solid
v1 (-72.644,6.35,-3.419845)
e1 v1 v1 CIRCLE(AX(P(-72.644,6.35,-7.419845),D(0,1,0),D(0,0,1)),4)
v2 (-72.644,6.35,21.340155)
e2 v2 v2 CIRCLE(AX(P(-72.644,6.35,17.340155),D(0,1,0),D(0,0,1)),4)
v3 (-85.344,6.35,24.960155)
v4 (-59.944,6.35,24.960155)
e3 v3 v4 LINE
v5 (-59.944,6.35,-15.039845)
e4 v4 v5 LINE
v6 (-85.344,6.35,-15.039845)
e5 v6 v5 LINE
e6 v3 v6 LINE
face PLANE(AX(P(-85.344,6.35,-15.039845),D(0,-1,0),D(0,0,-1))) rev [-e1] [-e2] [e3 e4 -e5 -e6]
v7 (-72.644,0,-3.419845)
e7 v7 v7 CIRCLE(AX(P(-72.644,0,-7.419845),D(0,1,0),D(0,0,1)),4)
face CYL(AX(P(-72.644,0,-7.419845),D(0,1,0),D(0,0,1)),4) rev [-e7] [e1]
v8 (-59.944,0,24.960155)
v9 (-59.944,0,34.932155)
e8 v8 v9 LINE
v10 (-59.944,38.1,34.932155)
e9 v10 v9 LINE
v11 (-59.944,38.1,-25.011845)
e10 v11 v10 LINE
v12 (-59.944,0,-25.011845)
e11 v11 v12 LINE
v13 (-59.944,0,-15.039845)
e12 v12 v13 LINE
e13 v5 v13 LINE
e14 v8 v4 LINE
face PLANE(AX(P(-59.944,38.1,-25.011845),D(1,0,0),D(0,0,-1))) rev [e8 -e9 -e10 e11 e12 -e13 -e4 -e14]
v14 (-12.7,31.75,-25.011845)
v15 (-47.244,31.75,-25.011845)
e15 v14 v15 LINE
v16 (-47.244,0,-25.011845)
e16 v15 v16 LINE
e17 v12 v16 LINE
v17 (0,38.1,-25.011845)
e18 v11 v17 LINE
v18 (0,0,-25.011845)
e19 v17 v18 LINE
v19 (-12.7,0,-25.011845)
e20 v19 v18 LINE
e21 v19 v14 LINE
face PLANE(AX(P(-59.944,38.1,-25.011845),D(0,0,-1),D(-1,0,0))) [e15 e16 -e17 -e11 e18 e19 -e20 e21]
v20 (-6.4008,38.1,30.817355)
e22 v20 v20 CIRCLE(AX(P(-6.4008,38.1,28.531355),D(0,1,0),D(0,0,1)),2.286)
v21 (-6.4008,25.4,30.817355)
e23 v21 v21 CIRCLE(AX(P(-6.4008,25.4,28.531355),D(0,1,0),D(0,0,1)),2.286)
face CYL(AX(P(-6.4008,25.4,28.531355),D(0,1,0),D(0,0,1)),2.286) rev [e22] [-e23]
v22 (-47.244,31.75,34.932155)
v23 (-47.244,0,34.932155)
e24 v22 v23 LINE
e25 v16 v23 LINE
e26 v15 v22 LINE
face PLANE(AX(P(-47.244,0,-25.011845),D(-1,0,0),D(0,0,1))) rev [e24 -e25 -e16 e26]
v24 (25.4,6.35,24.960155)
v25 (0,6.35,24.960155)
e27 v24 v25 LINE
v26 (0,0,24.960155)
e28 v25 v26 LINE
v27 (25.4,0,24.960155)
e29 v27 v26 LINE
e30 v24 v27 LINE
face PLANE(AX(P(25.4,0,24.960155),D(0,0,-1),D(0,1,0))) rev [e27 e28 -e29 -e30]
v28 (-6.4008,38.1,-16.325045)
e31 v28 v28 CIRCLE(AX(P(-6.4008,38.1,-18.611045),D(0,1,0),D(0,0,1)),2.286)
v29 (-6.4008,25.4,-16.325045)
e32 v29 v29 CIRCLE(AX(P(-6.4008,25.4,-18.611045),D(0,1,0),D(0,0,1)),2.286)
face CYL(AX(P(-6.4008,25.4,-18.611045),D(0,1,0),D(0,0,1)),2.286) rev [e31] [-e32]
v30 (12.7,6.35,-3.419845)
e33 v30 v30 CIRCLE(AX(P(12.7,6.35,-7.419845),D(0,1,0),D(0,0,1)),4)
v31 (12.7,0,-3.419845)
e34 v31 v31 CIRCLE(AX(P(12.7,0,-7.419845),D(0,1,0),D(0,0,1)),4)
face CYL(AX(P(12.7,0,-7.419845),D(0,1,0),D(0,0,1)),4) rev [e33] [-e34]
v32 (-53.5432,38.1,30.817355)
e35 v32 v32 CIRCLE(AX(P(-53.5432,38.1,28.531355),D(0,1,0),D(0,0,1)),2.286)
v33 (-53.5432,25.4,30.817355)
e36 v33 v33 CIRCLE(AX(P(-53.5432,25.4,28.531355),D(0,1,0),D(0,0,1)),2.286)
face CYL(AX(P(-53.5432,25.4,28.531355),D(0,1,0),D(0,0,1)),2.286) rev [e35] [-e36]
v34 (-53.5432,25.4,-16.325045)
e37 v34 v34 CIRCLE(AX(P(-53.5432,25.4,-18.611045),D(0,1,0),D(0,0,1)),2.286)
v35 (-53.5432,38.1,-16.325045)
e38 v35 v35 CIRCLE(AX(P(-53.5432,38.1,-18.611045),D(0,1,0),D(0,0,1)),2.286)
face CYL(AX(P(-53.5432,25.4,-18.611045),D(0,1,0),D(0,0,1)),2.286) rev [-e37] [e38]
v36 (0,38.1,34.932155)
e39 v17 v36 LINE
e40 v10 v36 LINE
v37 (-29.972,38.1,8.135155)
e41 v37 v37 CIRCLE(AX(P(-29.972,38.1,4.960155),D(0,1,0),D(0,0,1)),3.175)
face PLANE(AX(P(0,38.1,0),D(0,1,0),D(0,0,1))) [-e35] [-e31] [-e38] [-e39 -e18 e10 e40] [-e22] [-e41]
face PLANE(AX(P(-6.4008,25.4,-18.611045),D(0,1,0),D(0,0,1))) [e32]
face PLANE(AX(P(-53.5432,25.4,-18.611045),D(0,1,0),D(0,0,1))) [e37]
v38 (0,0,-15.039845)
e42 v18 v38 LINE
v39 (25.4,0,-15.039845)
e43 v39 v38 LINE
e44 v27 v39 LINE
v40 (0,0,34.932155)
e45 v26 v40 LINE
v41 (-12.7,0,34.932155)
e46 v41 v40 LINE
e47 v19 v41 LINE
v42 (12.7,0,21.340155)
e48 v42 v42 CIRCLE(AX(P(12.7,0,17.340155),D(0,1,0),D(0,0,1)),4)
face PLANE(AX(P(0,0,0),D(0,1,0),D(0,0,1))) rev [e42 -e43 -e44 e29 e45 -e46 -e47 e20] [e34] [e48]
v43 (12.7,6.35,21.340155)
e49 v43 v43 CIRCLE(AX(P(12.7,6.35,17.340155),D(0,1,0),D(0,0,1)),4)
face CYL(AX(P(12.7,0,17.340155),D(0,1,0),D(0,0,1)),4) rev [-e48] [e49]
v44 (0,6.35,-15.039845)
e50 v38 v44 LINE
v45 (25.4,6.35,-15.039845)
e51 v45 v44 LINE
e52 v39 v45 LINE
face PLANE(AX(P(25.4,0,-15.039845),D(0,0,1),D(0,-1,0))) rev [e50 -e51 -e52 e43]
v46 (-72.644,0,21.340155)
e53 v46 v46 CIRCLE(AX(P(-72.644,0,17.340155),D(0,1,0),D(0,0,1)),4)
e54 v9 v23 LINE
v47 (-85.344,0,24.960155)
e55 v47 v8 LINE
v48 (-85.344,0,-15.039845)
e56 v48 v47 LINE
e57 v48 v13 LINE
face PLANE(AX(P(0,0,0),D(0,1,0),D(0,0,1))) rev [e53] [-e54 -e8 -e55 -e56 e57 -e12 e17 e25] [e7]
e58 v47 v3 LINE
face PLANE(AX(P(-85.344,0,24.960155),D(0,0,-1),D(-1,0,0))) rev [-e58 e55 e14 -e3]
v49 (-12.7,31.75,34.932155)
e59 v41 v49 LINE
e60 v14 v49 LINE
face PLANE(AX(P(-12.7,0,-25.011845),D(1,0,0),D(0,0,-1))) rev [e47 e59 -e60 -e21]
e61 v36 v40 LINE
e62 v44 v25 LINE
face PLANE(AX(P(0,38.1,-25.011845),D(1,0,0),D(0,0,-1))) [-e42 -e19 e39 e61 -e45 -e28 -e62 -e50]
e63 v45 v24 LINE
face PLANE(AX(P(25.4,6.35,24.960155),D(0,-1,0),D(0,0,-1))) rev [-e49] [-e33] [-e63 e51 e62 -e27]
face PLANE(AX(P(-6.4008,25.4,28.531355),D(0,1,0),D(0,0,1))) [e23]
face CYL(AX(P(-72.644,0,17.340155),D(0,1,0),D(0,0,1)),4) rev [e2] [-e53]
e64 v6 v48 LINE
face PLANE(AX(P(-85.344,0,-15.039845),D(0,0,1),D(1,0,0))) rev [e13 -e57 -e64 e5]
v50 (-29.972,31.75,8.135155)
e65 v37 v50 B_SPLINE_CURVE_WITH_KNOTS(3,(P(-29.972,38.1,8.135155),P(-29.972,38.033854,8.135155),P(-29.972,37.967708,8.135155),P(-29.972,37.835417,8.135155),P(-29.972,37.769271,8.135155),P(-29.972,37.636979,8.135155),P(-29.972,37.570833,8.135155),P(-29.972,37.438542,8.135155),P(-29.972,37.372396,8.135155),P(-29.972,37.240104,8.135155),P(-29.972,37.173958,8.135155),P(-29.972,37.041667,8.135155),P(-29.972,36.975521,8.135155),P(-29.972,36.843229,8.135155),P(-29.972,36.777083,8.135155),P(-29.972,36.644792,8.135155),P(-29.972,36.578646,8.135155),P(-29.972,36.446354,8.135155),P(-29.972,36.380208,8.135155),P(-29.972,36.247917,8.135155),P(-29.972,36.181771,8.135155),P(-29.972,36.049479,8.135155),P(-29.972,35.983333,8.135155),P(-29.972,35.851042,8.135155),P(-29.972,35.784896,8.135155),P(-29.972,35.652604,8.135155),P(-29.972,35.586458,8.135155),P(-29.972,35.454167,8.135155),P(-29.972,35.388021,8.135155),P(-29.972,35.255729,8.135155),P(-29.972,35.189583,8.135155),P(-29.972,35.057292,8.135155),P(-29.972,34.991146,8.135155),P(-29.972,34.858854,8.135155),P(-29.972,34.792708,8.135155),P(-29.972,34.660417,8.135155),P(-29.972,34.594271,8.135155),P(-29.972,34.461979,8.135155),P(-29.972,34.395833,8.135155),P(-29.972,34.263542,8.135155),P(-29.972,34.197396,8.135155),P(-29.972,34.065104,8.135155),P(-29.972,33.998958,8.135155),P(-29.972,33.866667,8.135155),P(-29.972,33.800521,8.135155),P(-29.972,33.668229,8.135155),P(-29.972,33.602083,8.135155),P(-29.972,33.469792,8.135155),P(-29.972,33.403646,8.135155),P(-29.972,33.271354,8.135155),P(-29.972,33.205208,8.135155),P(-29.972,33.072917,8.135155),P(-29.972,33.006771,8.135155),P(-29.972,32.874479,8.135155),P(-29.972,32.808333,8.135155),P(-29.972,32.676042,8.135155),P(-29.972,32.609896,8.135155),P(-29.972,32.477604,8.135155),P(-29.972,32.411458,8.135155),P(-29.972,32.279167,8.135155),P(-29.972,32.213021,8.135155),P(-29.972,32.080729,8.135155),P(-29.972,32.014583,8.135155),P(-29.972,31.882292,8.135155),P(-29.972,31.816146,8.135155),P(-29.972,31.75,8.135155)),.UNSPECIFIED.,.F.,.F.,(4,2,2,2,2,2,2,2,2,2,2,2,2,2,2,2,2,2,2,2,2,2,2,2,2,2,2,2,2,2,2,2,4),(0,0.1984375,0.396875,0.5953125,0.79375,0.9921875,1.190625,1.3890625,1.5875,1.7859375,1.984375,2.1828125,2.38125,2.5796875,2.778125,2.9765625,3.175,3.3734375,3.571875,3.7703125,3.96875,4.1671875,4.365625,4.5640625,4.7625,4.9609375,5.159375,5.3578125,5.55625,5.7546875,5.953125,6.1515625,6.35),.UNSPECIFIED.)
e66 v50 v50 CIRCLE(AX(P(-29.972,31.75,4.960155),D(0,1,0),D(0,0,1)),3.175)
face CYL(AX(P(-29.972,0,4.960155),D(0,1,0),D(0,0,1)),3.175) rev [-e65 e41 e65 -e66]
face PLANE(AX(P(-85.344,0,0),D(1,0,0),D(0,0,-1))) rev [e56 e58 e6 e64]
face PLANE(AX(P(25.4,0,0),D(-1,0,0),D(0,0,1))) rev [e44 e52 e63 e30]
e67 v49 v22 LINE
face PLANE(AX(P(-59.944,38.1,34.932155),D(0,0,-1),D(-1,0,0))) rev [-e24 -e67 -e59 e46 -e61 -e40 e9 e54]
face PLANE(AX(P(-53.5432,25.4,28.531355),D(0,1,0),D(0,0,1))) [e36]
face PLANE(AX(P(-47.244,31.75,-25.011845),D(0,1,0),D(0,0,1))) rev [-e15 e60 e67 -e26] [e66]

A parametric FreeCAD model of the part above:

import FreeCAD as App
import Part
import Sketcher

V = App.Vector
Q = App.Units.Quantity


def add_polygon(sketch, points):
    """Adds a closed chain of lines whose ends are joined by coincident constraints."""
    first, n = sketch.GeometryCount, len(points)
    for a, b in zip(points, points[1:] + points[:1]):
        sketch.addGeometry(Part.LineSegment(App.Vector(*a, 0), App.Vector(*b, 0)), False)
    for i in range(n):
        sketch.addConstraint(Sketcher.Constraint("Coincident", first + i, 2, first + (i + 1) % n, 1))

doc = App.newDocument("Part")
body = doc.addObject("PartDesign::Body", "Body")

sketch1 = body.newObject("Sketcher::SketchObject", "Sketch")
sketch1.AttachmentSupport = (doc.getObject("XZ_Plane"), [""])
sketch1.MapMode = "FlatFace"
add_polygon(sketch1, [(-59.944, -25.011845), (-59.944, 34.932155), (0, 34.932155), (0, -25.011845)])
sketch1.addConstraint(Sketcher.Constraint("Vertical", 0))
sketch1.addConstraint(Sketcher.Constraint("Horizontal", 1))
sketch1.addConstraint(Sketcher.Constraint("Vertical", 2))
sketch1.addConstraint(Sketcher.Constraint("Horizontal", 3))
sketch1.addConstraint(Sketcher.Constraint("PointOnObject", 1, 2, -2))
sketch1.addConstraint(Sketcher.Constraint("Equal", 3, 0))
sketch1.addConstraint(Sketcher.Constraint("DistanceX", 1, 1, 1, 2, Q("2.36 in")))
sketch1.addConstraint(Sketcher.Constraint("DistanceY", -1, 1, 0, 2, 34.932155))
pad1 = body.newObject("PartDesign::Pad", "Pad")
pad1.Profile = sketch1
pad1.Length = Q("1.5 in")
pad1.Reversed = True

sketch2 = body.newObject("Sketcher::SketchObject", "Sketch001")
sketch2.AttachmentSupport = (doc.getObject("XY_Plane"), [""])
sketch2.MapMode = "FlatFace"
sketch2.AttachmentOffset = App.Placement(V(0, 0, 34.932155), App.Rotation())
add_polygon(sketch2, [(-47.244, 31.75), (-47.244, 0), (-12.7, 0), (-12.7, 31.75)])
sketch2.addConstraint(Sketcher.Constraint("Vertical", 0))
sketch2.addConstraint(Sketcher.Constraint("Horizontal", 1))
sketch2.addConstraint(Sketcher.Constraint("Vertical", 2))
sketch2.addConstraint(Sketcher.Constraint("Horizontal", 3))
sketch2.addConstraint(Sketcher.Constraint("PointOnObject", 0, 2, -1))
sketch2.addConstraint(Sketcher.Constraint("DistanceX", 1, 1, 1, 2, Q("1.36 in")))
sketch2.addConstraint(Sketcher.Constraint("DistanceY", 0, 2, 0, 1, Q("1.25 in")))
sketch2.addConstraint(Sketcher.Constraint("DistanceX", 1, 2, -1, 1, Q("0.5 in")))
pocket1 = body.newObject("PartDesign::Pocket", "Pocket")
pocket1.Profile = sketch2
pocket1.Type = "ThroughAll"

sketch3 = body.newObject("Sketcher::SketchObject", "Sketch002")
sketch3.AttachmentSupport = (doc.getObject("XZ_Plane"), [""])
sketch3.MapMode = "FlatFace"
sketch3.AttachmentOffset = App.Placement(V(0, 0, -1.5 * 25.4), App.Rotation())
sketch3.addGeometry(Part.Circle(V(-29.972, 4.960155, 0), V(0, 0, 1), 3.175), False)
sketch3.addConstraint(Sketcher.Constraint("Diameter", 0, Q("0.25 in")))
sketch3.addConstraint(Sketcher.Constraint("DistanceX", 0, 3, -1, 1, Q("1.18 in")))
sketch3.addConstraint(Sketcher.Constraint("DistanceY", -1, 1, 0, 3, 4.960155))
pocket2 = body.newObject("PartDesign::Pocket", "Pocket001")
pocket2.Profile = sketch3
pocket2.Type = "ThroughAll"
pocket2.Reversed = True

sketch4 = body.newObject("Sketcher::SketchObject", "Sketch003")
sketch4.AttachmentSupport = (doc.getObject("YZ_Plane"), [""])
sketch4.MapMode = "FlatFace"
add_polygon(sketch4, [(6.35, 24.960155), (0, 24.960155), (0, -15.039845), (6.35, -15.039845)])
sketch4.addConstraint(Sketcher.Constraint("Horizontal", 0))
sketch4.addConstraint(Sketcher.Constraint("Vertical", 1))
sketch4.addConstraint(Sketcher.Constraint("Horizontal", 2))
sketch4.addConstraint(Sketcher.Constraint("Vertical", 3))
sketch4.addConstraint(Sketcher.Constraint("PointOnObject", 0, 2, -2))
sketch4.addConstraint(Sketcher.Constraint("DistanceX", 0, 2, 0, 1, Q("0.25 in")))
sketch4.addConstraint(Sketcher.Constraint("DistanceY", 1, 2, 1, 1, 40.0))
sketch4.addConstraint(Sketcher.Constraint("DistanceY", -1, 1, 0, 2, 24.960155))
pad2 = body.newObject("PartDesign::Pad", "Pad001")
pad2.Profile = sketch4
pad2.Length = Q("1 in")

sketch5 = body.newObject("Sketcher::SketchObject", "Sketch004")
sketch5.AttachmentSupport = (doc.getObject("YZ_Plane"), [""])
sketch5.MapMode = "FlatFace"
sketch5.AttachmentOffset = App.Placement(V(0, 0, -2.36 * 25.4), App.Rotation())
add_polygon(sketch5, [(6.35, -15.039845), (0, -15.039845), (0, 24.960155), (6.35, 24.960155)])
sketch5.addConstraint(Sketcher.Constraint("Horizontal", 0))
sketch5.addConstraint(Sketcher.Constraint("Vertical", 1))
sketch5.addConstraint(Sketcher.Constraint("Horizontal", 2))
sketch5.addConstraint(Sketcher.Constraint("Vertical", 3))
sketch5.addConstraint(Sketcher.Constraint("PointOnObject", 0, 2, -2))
sketch5.addConstraint(Sketcher.Constraint("DistanceX", 0, 2, 0, 1, Q("0.25 in")))
sketch5.addConstraint(Sketcher.Constraint("DistanceY", 1, 1, 1, 2, 40.0))
sketch5.addConstraint(Sketcher.Constraint("DistanceY", 0, 2, -1, 1, 15.039845))
pad3 = body.newObject("PartDesign::Pad", "Pad002")
pad3.Profile = sketch5
pad3.Length = Q("1 in")
pad3.Reversed = True

sketch6 = body.newObject("Sketcher::SketchObject", "Sketch005")
sketch6.AttachmentSupport = (doc.getObject("XZ_Plane"), [""])
sketch6.MapMode = "FlatFace"
sketch6.AttachmentOffset = App.Placement(V(0, 0, -0.25 * 25.4), App.Rotation())
sketch6.addGeometry(Part.Circle(V(-72.644, -7.419845, 0), V(0, 0, 1), 4), False)
sketch6.addGeometry(Part.Circle(V(-72.644, 17.340155, 0), V(0, 0, 1), 4), False)
sketch6.addGeometry(Part.Circle(V(12.7, -7.419845, 0), V(0, 0, 1), 4), False)
sketch6.addGeometry(Part.Circle(V(12.7, 17.340155, 0), V(0, 0, 1), 4), False)
sketch6.addConstraint(Sketcher.Constraint("Equal", 0, 1))
sketch6.addConstraint(Sketcher.Constraint("Equal", 1, 2))
sketch6.addConstraint(Sketcher.Constraint("Equal", 2, 3))
sketch6.addConstraint(Sketcher.Constraint("Horizontal", 0, 3, 2, 3))
sketch6.addConstraint(Sketcher.Constraint("Horizontal", 1, 3, 3, 3))
sketch6.addConstraint(Sketcher.Constraint("Vertical", 0, 3, 1, 3))
sketch6.addConstraint(Sketcher.Constraint("Vertical", 2, 3, 3, 3))
sketch6.addConstraint(Sketcher.Constraint("DistanceX", -1, 1, 2, 3, Q("0.5 in")))
sketch6.addConstraint(Sketcher.Constraint("Diameter", 0, 8.0))
sketch6.addConstraint(Sketcher.Constraint("DistanceX", 0, 3, -1, 1, Q("2.86 in")))
sketch6.addConstraint(Sketcher.Constraint("DistanceY", 0, 3, 1, 3, 24.76))
sketch6.addConstraint(Sketcher.Constraint("DistanceY", 0, 3, -1, 1, 7.419845))
pocket3 = body.newObject("PartDesign::Pocket", "Pocket002")
pocket3.Profile = sketch6
pocket3.Type = "ThroughAll"
pocket3.Reversed = True

sketch7 = body.newObject("Sketcher::SketchObject", "Sketch006")
sketch7.AttachmentSupport = (doc.getObject("XZ_Plane"), [""])
sketch7.MapMode = "FlatFace"
sketch7.AttachmentOffset = App.Placement(V(0, 0, -1.5 * 25.4), App.Rotation())
sketch7.addGeometry(Part.Circle(V(-53.5432, -18.611045, 0), V(0, 0, 1), 2.286), False)
sketch7.addGeometry(Part.Circle(V(-6.4008, 28.531355, 0), V(0, 0, 1), 2.286), False)
sketch7.addGeometry(Part.Circle(V(-53.5432, 28.531355, 0), V(0, 0, 1), 2.286), False)
sketch7.addGeometry(Part.Circle(V(-6.4008, -18.611045, 0), V(0, 0, 1), 2.286), False)
sketch7.addConstraint(Sketcher.Constraint("Equal", 0, 1))
sketch7.addConstraint(Sketcher.Constraint("Equal", 1, 2))
sketch7.addConstraint(Sketcher.Constraint("Equal", 2, 3))
sketch7.addConstraint(Sketcher.Constraint("Horizontal", 1, 3, 2, 3))
sketch7.addConstraint(Sketcher.Constraint("Horizontal", 0, 3, 3, 3))
sketch7.addConstraint(Sketcher.Constraint("Vertical", 0, 3, 2, 3))
sketch7.addConstraint(Sketcher.Constraint("Vertical", 1, 3, 3, 3))
sketch7.addConstraint(Sketcher.Constraint("Diameter", 0, Q("0.18 in")))
sketch7.addConstraint(Sketcher.Constraint("DistanceX", 0, 3, -1, 1, Q("2.108 in")))
sketch7.addConstraint(Sketcher.Constraint("DistanceX", 1, 3, -1, 1, Q("0.252 in")))
sketch7.addConstraint(Sketcher.Constraint("DistanceY", 0, 3, 1, 3, Q("1.856 in")))
sketch7.addConstraint(Sketcher.Constraint("DistanceY", 0, 3, -1, 1, 18.611045))
pocket4 = body.newObject("PartDesign::Pocket", "Pocket003")
pocket4.Profile = sketch7
pocket4.Length = Q("0.5 in")
pocket4.Reversed = True

doc.recompute()
